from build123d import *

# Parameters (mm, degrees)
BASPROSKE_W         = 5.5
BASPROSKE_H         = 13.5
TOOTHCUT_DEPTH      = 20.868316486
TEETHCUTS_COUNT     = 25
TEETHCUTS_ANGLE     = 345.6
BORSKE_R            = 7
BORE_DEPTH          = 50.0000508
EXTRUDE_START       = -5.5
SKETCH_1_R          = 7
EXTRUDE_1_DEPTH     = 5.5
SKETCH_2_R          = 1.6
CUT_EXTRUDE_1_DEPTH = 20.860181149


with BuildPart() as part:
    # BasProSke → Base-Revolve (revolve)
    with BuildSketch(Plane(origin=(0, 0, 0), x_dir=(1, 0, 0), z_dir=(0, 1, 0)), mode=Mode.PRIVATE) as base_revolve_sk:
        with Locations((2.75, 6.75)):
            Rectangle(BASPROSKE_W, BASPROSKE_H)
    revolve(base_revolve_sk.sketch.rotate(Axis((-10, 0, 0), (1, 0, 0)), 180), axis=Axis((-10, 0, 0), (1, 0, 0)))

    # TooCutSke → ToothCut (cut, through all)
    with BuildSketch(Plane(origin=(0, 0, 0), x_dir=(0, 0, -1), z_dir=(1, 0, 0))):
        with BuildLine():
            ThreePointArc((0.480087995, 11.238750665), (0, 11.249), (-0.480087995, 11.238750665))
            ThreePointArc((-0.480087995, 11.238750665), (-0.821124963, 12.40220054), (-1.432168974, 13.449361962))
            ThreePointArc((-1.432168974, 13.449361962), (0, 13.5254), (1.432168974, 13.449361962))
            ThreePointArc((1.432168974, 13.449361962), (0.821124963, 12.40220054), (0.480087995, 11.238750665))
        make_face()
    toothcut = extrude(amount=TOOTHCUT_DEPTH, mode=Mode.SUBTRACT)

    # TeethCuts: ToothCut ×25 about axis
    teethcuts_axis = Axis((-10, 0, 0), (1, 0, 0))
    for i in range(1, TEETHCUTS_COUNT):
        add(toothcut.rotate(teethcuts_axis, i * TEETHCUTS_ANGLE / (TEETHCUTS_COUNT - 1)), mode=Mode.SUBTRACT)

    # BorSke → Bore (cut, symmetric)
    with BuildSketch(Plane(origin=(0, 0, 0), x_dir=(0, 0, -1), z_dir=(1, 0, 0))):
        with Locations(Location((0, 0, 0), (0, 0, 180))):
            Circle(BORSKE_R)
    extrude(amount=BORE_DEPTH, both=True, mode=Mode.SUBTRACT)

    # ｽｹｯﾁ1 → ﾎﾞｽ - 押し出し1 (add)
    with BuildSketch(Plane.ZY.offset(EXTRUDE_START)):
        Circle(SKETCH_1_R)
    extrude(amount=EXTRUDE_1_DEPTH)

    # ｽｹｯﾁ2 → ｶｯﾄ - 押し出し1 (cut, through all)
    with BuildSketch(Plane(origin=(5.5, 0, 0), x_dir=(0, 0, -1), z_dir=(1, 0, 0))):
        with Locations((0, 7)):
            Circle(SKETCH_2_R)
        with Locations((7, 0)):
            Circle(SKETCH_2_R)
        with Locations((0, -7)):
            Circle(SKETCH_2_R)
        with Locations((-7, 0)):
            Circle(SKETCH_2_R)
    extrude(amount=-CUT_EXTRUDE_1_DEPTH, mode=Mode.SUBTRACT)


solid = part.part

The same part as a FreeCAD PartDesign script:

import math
import FreeCAD as App
import Part
import Sketcher
from FreeCAD import Vector


def add_polygon(sketch, points):
    """Adds a closed chain of lines whose ends are joined by coincident constraints."""
    first, n = sketch.GeometryCount, len(points)
    for a, b in zip(points, points[1:] + points[:1]):
        sketch.addGeometry(Part.LineSegment(App.Vector(*a, 0), App.Vector(*b, 0)), False)
    for i in range(n):
        sketch.addConstraint(Sketcher.Constraint("Coincident", first + i, 2, first + (i + 1) % n, 1))

doc = App.newDocument("Part")
body = doc.addObject("PartDesign::Body", "Body")

# Sketch on XZ plane
sketch1 = doc.addObject("Sketcher::SketchObject", "Sketch")
body.addObject(sketch1)
sketch1.AttachmentSupport = (doc.XZ_Plane, [""])
sketch1.MapMode = "FlatFace"
add_polygon(sketch1, [(0, -13.5), (0, 0), (5.5, 0), (5.5, -13.5)])  # lines 0-3
sketch1.addConstraint(Sketcher.Constraint("Vertical", 0))
sketch1.addConstraint(Sketcher.Constraint("Horizontal", 1))
sketch1.addConstraint(Sketcher.Constraint("Vertical", 2))
sketch1.addConstraint(Sketcher.Constraint("Horizontal", 3))
sketch1.addConstraint(Sketcher.Constraint("Coincident", 0, 2, -1, 1))
sketch1.addConstraint(Sketcher.Constraint("DistanceX", 1, 1, 1, 2, 5.5))
sketch1.addConstraint(Sketcher.Constraint("DistanceY", 0, 1, 0, 2, 13.5))
revolution = doc.addObject("PartDesign::Revolution", "Revolution")
body.addObject(revolution)
revolution.Profile = sketch1
revolution.ReferenceAxis = (sketch1, ["H_Axis"])
revolution.Angle = 360

# Sketch on YZ plane
sketch2 = doc.addObject("Sketcher::SketchObject", "Sketch001")
body.addObject(sketch2)
sketch2.AttachmentSupport = (doc.YZ_Plane, [""])
sketch2.MapMode = "FlatFace"
sketch2.addGeometry(Part.ArcOfCircle(Part.Circle(Vector(0, 0, 0), Vector(0, 0, 1), 11.249), math.radians(-2.446028), math.radians(2.446028)), False)
sketch2.addGeometry(Part.ArcOfCircle(Part.Circle(Vector(10.424401, -5.413326, 0), Vector(0, 0, 1), 5), math.radians(52.771714), math.radians(80.626478)), False)
sketch2.addGeometry(Part.ArcOfCircle(Part.Circle(Vector(0, 0, 0), Vector(0, 0, 1), 13.5254), math.radians(-6.078294), math.radians(6.078294)), False)
sketch2.addGeometry(Part.ArcOfCircle(Part.Circle(Vector(10.424401, 5.413326, 0), Vector(0, 0, 1), 5), math.radians(-80.626478), math.radians(-52.771714)), False)
sketch2.addConstraint(Sketcher.Constraint("Coincident", 0, 1, 1, 2))
sketch2.addConstraint(Sketcher.Constraint("Coincident", 1, 1, 2, 1))
sketch2.addConstraint(Sketcher.Constraint("Coincident", 2, 2, 3, 2))
sketch2.addConstraint(Sketcher.Constraint("Coincident", 3, 1, 0, 2))
sketch2.addConstraint(Sketcher.Constraint("Coincident", 0, 3, -1, 1))
sketch2.addConstraint(Sketcher.Constraint("Coincident", 2, 3, -1, 1))
sketch2.addConstraint(Sketcher.Constraint("Equal", 1, 3))
sketch2.addConstraint(Sketcher.Constraint("Symmetric", 1, 3, 3, 3, -1))
sketch2.addConstraint(Sketcher.Constraint("Radius", 1, 5.0))
sketch2.addConstraint(Sketcher.Constraint("Radius", 0, 11.249))
sketch2.addConstraint(Sketcher.Constraint("Radius", 2, 13.5254))
sketch2.addConstraint(Sketcher.Constraint("DistanceX", -1, 1, 1, 3, 10.424401))
sketch2.addConstraint(Sketcher.Constraint("DistanceX", -1, 1, 0, 1, 11.238751))
pocket1 = doc.addObject("PartDesign::Pocket", "Pocket")
body.addObject(pocket1)
pocket1.Profile = sketch2
pocket1.Type = "ThroughAll"
pocket1.Reversed = True
doc.recompute()

polarpattern = doc.addObject("PartDesign::PolarPattern", "PolarPattern")
body.addObject(polarpattern)
polarpattern.Originals = [pocket1]
polarpattern.Axis = (doc.X_Axis, [""])
polarpattern.Angle = 360
polarpattern.Occurrences = 25
body.Tip = polarpattern

# Sketch on YZ plane
sketch3 = doc.addObject("Sketcher::SketchObject", "Sketch002")
body.addObject(sketch3)
sketch3.AttachmentSupport = (doc.YZ_Plane, [""])
sketch3.MapMode = "FlatFace"
sketch3.addGeometry(Part.Circle(Vector(0, 0, 0), Vector(0, 0, 1), 7), False)
sketch3.addConstraint(Sketcher.Constraint("Coincident", 0, 3, -1, 1))
sketch3.addConstraint(Sketcher.Constraint("Diameter", 0, 14.0))
pocket2 = doc.addObject("PartDesign::Pocket", "Pocket001")
body.addObject(pocket2)
pocket2.Profile = sketch3
pocket2.Length = 100.000102
pocket2.Midplane = True

# Sketch on YZ plane
sketch4 = doc.addObject("Sketcher::SketchObject", "Sketch003")
body.addObject(sketch4)
sketch4.AttachmentSupport = (doc.YZ_Plane, [""])
sketch4.MapMode = "FlatFace"
sketch4.AttachmentOffset = App.Placement(Vector(0, 0, 5.5), App.Rotation())
sketch4.addGeometry(Part.Circle(Vector(0, 0, 0), Vector(0, 0, 1), 7), False)
sketch4.addConstraint(Sketcher.Constraint("Coincident", 0, 3, -1, 1))
sketch4.addConstraint(Sketcher.Constraint("Diameter", 0, 14.0))
pad1 = doc.addObject("PartDesign::Pad", "Pad")
body.addObject(pad1)
pad1.Profile = sketch4
pad1.Length = 5.5
pad1.Reversed = True

# Sketch on YZ plane
sketch5 = doc.addObject("Sketcher::SketchObject", "Sketch004")
body.addObject(sketch5)
sketch5.AttachmentSupport = (doc.YZ_Plane, [""])
sketch5.MapMode = "FlatFace"
sketch5.AttachmentOffset = App.Placement(Vector(0, 0, 5.5), App.Rotation())
sketch5.addGeometry(Part.Circle(Vector(7, 0, 0), Vector(0, 0, 1), 1.6), False)
sketch5.addGeometry(Part.Circle(Vector(0, -7, 0), Vector(0, 0, 1), 1.6), False)
sketch5.addGeometry(Part.Circle(Vector(-7, 0, 0), Vector(0, 0, 1), 1.6), False)
sketch5.addGeometry(Part.Circle(Vector(0, 7, 0), Vector(0, 0, 1), 1.6), False)
sketch5.addConstraint(Sketcher.Constraint("Equal", 0, 1))
sketch5.addConstraint(Sketcher.Constraint("Equal", 1, 2))
sketch5.addConstraint(Sketcher.Constraint("Equal", 2, 3))
sketch5.addConstraint(Sketcher.Constraint("Symmetric", 0, 3, 2, 3, -1, 1))
sketch5.addConstraint(Sketcher.Constraint("Symmetric", 1, 3, 3, 3, -1, 1))
sketch5.addConstraint(Sketcher.Constraint("PointOnObject", 0, 3, -1))
sketch5.addConstraint(Sketcher.Constraint("PointOnObject", 1, 3, -2))
sketch5.addConstraint(Sketcher.Constraint("Diameter", 0, 3.2))
sketch5.addConstraint(Sketcher.Constraint("DistanceX", -1, 1, 0, 3, 7.0))
sketch5.addConstraint(Sketcher.Constraint("DistanceY", 1, 3, -1, 1, 7.0))
pocket3 = doc.addObject("PartDesign::Pocket", "Pocket002")
body.addObject(pocket3)
pocket3.Profile = sketch5
pocket3.Type = "ThroughAll"

doc.recompute()
